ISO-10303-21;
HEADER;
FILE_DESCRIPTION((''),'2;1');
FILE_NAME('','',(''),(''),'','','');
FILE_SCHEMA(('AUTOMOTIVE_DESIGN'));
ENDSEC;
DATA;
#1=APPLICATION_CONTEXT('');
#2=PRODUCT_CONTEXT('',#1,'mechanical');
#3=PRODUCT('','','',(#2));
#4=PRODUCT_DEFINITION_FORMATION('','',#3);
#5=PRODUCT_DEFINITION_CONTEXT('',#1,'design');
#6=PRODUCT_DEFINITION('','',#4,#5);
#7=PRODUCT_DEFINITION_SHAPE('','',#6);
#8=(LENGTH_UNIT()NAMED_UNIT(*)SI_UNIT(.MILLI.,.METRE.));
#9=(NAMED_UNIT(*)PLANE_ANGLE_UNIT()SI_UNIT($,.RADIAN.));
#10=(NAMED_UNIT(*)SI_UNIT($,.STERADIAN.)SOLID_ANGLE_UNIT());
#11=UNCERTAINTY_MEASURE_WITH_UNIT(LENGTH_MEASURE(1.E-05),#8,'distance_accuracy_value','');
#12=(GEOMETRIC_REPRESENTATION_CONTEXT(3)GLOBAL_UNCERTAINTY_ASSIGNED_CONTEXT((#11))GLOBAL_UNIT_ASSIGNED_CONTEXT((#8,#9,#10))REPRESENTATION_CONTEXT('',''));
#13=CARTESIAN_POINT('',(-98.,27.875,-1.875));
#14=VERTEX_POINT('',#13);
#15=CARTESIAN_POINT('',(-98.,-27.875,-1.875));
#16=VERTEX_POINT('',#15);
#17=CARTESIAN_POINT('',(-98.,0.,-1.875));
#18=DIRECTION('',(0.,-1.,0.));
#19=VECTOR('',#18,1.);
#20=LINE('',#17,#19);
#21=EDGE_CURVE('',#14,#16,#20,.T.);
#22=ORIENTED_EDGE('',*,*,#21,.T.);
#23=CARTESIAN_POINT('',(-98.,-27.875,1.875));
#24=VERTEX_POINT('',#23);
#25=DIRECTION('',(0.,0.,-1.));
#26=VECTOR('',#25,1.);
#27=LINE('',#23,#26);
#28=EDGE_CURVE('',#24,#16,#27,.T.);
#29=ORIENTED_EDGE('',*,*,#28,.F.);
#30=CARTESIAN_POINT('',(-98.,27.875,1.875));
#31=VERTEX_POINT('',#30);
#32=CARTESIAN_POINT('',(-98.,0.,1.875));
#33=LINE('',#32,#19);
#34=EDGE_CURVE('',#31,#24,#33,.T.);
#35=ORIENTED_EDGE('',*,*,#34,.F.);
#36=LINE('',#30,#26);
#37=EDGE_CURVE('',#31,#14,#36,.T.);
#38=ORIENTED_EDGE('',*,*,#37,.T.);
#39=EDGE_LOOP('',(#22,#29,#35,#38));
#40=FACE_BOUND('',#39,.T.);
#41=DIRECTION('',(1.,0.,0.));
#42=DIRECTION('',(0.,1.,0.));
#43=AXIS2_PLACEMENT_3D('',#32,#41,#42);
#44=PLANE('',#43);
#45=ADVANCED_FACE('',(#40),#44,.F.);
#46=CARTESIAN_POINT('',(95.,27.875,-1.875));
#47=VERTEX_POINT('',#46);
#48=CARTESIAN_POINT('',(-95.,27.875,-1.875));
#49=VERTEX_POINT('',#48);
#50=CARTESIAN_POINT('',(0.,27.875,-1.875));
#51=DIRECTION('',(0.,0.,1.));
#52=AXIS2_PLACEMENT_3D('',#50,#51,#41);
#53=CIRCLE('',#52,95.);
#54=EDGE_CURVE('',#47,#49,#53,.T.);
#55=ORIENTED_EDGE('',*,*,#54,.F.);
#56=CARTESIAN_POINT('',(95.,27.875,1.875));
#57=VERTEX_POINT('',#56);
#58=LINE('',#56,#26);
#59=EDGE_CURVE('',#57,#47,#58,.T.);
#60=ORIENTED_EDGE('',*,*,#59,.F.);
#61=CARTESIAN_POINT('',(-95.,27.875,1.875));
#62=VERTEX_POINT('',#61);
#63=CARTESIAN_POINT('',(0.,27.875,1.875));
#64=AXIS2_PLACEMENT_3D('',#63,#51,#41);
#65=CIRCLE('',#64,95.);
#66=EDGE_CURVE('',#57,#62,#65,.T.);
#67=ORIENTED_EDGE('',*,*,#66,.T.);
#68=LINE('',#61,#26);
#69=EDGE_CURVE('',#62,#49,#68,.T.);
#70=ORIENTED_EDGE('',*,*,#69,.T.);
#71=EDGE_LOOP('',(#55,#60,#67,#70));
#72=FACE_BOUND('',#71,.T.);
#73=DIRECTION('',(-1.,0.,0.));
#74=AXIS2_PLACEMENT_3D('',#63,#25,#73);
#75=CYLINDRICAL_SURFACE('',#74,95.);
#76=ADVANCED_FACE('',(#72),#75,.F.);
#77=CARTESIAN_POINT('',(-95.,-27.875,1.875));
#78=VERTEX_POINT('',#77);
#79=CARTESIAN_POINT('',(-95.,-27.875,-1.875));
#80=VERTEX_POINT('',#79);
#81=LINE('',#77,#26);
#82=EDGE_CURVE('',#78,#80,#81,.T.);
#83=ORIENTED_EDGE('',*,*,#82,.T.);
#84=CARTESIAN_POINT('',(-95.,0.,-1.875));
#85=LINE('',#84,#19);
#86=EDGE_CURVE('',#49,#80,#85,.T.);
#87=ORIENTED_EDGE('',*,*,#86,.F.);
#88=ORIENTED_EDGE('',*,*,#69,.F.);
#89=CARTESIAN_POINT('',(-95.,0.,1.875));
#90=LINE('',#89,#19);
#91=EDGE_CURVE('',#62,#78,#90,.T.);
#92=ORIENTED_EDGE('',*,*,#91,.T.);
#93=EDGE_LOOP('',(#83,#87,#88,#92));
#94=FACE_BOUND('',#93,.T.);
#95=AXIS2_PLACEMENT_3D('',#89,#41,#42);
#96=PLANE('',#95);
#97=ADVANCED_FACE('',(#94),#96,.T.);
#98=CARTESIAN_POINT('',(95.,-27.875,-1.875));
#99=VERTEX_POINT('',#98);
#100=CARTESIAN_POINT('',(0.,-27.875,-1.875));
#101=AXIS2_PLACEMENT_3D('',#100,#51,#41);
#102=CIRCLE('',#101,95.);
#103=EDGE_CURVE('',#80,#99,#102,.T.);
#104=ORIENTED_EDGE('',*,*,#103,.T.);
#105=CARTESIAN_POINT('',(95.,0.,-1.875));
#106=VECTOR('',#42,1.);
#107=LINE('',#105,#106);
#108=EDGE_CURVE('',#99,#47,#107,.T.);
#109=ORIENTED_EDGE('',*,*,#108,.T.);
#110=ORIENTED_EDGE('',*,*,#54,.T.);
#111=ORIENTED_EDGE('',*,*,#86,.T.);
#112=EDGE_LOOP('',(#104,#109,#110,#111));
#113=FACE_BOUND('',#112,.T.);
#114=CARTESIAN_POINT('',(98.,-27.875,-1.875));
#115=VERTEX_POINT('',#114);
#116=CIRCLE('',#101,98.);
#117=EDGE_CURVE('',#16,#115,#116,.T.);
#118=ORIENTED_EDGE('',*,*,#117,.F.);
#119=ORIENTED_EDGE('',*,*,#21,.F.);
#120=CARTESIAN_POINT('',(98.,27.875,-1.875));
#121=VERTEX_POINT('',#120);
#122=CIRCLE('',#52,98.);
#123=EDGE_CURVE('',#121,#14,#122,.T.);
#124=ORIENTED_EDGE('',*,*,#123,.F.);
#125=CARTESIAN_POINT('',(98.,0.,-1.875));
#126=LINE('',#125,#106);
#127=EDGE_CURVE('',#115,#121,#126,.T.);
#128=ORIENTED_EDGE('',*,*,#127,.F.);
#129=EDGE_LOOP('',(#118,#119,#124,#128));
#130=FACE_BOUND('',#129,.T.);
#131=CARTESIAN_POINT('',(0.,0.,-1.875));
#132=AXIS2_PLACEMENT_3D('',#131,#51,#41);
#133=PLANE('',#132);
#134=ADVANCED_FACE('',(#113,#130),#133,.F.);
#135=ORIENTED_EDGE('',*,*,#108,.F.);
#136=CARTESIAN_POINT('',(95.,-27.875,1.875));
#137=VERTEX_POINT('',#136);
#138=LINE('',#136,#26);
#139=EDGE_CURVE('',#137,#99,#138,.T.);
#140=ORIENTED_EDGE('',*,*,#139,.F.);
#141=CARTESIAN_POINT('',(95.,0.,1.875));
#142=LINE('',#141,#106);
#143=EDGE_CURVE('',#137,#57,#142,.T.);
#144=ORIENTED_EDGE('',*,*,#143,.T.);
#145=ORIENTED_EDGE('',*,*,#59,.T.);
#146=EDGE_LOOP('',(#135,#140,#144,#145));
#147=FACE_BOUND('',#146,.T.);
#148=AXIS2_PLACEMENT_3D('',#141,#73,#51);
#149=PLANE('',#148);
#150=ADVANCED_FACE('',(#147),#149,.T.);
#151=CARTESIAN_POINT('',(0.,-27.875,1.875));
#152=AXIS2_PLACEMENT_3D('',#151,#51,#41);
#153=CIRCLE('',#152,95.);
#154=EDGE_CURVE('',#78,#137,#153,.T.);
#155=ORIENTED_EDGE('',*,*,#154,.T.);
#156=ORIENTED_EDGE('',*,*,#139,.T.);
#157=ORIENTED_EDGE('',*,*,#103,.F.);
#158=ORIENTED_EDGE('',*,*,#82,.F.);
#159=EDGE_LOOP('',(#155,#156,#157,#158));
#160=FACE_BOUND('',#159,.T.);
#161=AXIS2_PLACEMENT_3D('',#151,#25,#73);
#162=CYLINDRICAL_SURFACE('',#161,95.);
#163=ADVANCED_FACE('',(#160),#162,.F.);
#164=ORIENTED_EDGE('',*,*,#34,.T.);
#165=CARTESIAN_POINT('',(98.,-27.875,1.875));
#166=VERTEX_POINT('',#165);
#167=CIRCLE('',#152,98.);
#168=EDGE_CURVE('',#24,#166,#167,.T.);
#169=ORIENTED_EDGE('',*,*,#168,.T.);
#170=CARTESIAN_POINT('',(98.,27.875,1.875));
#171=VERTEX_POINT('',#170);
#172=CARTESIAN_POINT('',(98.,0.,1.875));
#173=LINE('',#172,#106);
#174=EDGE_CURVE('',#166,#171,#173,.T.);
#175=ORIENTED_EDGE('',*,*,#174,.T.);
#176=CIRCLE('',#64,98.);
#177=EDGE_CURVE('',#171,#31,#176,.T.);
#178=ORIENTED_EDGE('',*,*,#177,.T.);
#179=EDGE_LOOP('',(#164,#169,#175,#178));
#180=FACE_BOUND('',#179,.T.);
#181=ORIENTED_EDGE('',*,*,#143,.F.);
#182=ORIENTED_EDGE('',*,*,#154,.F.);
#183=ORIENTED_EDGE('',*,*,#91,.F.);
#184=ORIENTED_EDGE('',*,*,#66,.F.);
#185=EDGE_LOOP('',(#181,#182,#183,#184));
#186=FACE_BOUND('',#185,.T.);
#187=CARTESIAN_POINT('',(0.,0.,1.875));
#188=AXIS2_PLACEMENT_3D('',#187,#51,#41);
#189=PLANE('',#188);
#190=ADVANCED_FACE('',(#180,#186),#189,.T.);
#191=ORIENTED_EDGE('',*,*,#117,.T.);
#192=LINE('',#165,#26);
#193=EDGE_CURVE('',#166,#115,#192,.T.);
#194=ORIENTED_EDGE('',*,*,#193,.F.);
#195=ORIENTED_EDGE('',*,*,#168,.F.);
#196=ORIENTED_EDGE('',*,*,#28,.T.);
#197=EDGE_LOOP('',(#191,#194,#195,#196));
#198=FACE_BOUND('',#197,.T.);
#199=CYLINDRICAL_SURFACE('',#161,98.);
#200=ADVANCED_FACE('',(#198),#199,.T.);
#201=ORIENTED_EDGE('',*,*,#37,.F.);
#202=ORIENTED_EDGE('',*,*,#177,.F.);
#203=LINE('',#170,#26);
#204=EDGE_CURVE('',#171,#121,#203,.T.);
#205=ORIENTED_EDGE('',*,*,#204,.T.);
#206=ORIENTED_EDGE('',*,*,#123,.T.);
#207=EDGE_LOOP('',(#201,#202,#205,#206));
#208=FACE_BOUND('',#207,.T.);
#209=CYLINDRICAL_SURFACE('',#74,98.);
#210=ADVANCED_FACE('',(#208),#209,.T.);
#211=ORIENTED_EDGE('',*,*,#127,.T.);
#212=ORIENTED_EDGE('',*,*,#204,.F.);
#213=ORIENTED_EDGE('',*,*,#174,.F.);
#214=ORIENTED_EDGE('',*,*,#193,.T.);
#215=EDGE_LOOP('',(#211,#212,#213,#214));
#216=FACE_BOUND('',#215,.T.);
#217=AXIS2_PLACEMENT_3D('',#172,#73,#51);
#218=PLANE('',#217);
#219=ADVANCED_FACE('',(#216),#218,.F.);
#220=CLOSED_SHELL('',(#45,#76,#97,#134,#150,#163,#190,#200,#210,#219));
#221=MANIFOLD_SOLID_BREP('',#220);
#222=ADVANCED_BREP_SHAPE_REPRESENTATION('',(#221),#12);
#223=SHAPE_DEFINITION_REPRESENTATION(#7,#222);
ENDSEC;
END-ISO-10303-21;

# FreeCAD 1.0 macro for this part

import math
import FreeCAD as App
import Part
import Sketcher

V = App.Vector
Q = App.Units.Quantity

doc = App.newDocument("Part")
body = doc.addObject("PartDesign::Body", "Body")

sketch1 = body.newObject("Sketcher::SketchObject", "Sketch")
sketch1.AttachmentSupport = (doc.getObject("XY_Plane"), [""])
sketch1.MapMode = "FlatFace"
sketch1.addGeometry([
    Part.LineSegment(V(-98, 27.875, 0), V(-98, -27.875, 0)),
    Part.ArcOfCircle(Part.Circle(V(0, -27.875, 0), V(0, 0, 1), 98), math.radians(180), math.radians(360)),
    Part.LineSegment(V(98, -27.875, 0), V(98, 27.875, 0)),
    Part.ArcOfCircle(Part.Circle(V(0, 27.875, 0), V(0, 0, 1), 98), math.radians(0), math.radians(180)),
    Part.LineSegment(V(95, 27.875, 0), V(95, -27.875, 0)),
    Part.ArcOfCircle(Part.Circle(V(0, -27.875, 0), V(0, 0, 1), 95), math.radians(180), math.radians(360)),
    Part.LineSegment(V(-95, -27.875, 0), V(-95, 27.875, 0)),
    Part.ArcOfCircle(Part.Circle(V(0, 27.875, 0), V(0, 0, 1), 95), math.radians(0), math.radians(180)),
], False)
sketch1.addConstraint([
    Sketcher.Constraint("Tangent", 0, 2, 1, 1),
    Sketcher.Constraint("Tangent", 1, 2, 2, 1),
    Sketcher.Constraint("Tangent", 2, 2, 3, 1),
    Sketcher.Constraint("Tangent", 3, 2, 0, 1),
    Sketcher.Constraint("Tangent", 4, 2, 5, 2),
    Sketcher.Constraint("Tangent", 5, 1, 6, 1),
    Sketcher.Constraint("Tangent", 6, 2, 7, 2),
    Sketcher.Constraint("Tangent", 7, 1, 4, 1),
    Sketcher.Constraint("Vertical", 0),
    Sketcher.Constraint("Vertical", 2),
    Sketcher.Constraint("Vertical", 4),
    Sketcher.Constraint("Vertical", 6),
    Sketcher.Constraint("Coincident", 5, 3, 1, 3),
    Sketcher.Constraint("Symmetric", 1, 3, 3, 3, -1, 1),
    Sketcher.Constraint("Horizontal", 7, 3, 2, 2),
    Sketcher.Constraint("Radius", 1, Q("98 mm")),
    Sketcher.Constraint("Radius", 5, Q("95 mm")),
    Sketcher.Constraint("DistanceY", 0, 2, 0, 1, Q("55.75 mm")),
])
pad1 = body.newObject("PartDesign::Pad", "Pad")
pad1.Profile = sketch1
pad1.Length = 3.75
pad1.Midplane = True

doc.recompute()
